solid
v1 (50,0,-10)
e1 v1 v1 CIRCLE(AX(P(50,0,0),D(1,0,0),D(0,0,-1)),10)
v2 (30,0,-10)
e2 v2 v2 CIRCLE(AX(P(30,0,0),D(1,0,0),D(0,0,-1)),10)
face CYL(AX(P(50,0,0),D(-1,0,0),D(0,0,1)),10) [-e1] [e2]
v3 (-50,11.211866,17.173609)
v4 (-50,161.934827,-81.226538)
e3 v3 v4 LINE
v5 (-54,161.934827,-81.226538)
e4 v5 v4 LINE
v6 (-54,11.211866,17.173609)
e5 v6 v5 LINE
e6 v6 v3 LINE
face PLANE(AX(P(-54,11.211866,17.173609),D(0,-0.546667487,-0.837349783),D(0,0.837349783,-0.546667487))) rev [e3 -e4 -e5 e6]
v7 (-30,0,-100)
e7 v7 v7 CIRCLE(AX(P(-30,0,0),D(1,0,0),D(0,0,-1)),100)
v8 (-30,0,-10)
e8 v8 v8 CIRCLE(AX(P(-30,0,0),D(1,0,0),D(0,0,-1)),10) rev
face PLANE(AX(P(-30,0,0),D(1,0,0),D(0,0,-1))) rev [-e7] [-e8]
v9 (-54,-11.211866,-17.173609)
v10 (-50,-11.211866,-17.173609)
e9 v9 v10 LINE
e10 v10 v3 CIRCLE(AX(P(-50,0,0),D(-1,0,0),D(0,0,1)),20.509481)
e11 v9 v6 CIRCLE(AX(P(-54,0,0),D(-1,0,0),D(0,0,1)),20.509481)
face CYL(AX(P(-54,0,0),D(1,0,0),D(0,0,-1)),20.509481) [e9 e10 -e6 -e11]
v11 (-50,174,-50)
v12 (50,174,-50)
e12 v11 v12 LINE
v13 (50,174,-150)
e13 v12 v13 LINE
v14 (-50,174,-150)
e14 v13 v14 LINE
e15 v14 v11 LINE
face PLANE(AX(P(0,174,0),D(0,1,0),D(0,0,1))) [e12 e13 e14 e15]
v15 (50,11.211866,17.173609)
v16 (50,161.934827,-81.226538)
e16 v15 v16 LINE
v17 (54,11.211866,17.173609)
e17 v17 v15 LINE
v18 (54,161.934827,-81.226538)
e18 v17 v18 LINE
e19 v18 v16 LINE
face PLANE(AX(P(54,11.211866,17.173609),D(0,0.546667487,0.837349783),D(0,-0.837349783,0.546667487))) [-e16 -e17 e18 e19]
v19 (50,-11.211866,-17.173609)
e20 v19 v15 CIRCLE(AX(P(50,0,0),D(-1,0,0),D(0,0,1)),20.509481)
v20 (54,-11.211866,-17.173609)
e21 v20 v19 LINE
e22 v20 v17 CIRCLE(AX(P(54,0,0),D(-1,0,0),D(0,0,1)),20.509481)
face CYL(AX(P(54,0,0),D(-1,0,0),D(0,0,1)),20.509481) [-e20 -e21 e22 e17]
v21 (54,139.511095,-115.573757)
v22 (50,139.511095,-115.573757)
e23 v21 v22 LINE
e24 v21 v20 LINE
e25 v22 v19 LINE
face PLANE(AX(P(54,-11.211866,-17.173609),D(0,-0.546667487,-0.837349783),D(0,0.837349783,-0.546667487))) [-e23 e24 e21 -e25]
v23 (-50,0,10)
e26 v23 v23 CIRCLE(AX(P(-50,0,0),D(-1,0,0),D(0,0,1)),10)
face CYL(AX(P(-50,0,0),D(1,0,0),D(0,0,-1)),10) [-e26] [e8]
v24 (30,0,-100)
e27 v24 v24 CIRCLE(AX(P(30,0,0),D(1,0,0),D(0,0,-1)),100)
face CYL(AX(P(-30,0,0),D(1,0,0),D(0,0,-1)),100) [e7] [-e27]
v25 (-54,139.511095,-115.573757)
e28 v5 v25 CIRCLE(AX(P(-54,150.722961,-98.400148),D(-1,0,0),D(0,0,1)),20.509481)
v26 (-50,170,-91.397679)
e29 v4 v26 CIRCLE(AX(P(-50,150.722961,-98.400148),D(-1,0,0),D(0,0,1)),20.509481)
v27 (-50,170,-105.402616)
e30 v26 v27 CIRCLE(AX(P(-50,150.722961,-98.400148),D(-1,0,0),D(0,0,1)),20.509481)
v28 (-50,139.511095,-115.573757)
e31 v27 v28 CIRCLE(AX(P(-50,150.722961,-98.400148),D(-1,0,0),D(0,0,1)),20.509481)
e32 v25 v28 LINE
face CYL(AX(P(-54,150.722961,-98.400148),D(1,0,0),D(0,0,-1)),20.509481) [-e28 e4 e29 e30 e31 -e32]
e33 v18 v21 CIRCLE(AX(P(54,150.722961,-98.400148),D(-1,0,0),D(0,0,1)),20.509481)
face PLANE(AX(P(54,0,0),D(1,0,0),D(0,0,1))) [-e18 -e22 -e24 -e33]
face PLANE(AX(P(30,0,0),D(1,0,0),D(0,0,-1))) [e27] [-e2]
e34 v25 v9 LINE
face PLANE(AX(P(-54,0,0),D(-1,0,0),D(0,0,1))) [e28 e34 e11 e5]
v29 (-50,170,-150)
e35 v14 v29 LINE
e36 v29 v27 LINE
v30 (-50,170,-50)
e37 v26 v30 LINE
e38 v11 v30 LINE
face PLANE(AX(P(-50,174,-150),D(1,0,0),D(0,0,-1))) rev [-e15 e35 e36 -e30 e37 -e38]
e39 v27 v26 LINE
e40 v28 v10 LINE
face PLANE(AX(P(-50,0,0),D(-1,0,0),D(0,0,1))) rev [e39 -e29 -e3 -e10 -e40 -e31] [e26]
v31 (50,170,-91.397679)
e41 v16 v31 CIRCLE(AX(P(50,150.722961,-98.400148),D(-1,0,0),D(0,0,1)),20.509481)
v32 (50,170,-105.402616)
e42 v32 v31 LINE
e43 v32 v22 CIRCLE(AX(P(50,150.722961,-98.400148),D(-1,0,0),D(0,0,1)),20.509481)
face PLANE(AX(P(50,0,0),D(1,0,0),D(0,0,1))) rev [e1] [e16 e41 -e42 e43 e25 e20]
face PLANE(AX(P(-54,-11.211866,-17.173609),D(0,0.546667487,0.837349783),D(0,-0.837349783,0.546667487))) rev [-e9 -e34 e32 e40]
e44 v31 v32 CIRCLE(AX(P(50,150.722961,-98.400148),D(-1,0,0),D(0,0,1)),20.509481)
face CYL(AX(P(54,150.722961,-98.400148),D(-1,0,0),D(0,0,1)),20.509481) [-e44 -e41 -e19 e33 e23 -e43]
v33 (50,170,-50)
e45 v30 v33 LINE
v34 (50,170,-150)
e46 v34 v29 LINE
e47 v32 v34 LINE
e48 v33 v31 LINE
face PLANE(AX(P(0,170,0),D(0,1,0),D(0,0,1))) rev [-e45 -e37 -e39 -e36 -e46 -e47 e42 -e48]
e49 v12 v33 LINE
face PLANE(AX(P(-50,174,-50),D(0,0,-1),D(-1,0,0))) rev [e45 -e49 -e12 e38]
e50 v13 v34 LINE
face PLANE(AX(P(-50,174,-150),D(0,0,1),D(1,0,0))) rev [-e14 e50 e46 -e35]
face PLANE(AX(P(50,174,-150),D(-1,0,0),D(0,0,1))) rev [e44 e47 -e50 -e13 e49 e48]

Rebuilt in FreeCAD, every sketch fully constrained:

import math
import FreeCAD as App
import Part
import Sketcher

doc = App.newDocument("Part")
params = doc.addObject("Spreadsheet::Sheet", "Params")
for row, (alias, value) in enumerate([
    ("sketch1_diameter", "200 mm"),
    ("pad1_length", "30 mm"),
    ("pad1_length2", "30 mm"),
    ("sketch2_diameter", "20 mm"),
    ("pad2_length", "20 mm"),
    ("sketch3_diameter", "20 mm"),
    ("pad3_length", "20 mm"),
    ("sketch4_length", "180 mm"),
    ("pad4_length", "4 mm"),
    ("sketch5_width", "100 mm"),
    ("pad5_length", "4 mm"),
], start=1):
    params.set(f"A{row}", alias)
    params.set(f"B{row}", "=" + value)
    params.setAlias(f"B{row}", alias)

body = doc.addObject("PartDesign::Body", "Body")

# Sketch on YZ plane
sketch1 = doc.addObject("Sketcher::SketchObject", "Sketch")
body.addObject(sketch1)
sketch1.AttachmentSupport = (doc.YZ_Plane, [""])
sketch1.MapMode = "FlatFace"
sketch1.addGeometry(Part.Circle(App.Vector(0, 0, 0), App.Vector(0, 0, 1), 100), False)
sketch1.addConstraint([
    Sketcher.Constraint("Coincident", 0, 3, -1, 1),
    Sketcher.Constraint("Diameter", 0, 200.0),
])
sketch1.setExpression("Constraints[1]", "Params.sketch1_diameter")
pad1 = doc.addObject("PartDesign::Pad", "Pad")
body.addObject(pad1)
pad1.Profile = sketch1
pad1.Type = "TwoLengths"
pad1.setExpression("Length", "Params.pad1_length")
pad1.setExpression("Length2", "Params.pad1_length2")

# Sketch on YZ plane
sketch2 = doc.addObject("Sketcher::SketchObject", "Sketch001")
body.addObject(sketch2)
sketch2.AttachmentSupport = (doc.YZ_Plane, [""])
sketch2.MapMode = "FlatFace"
sketch2.AttachmentOffset = App.Placement(App.Vector(0, 0, 30), App.Rotation())
sketch2.addGeometry(Part.Circle(App.Vector(0, 0, 0), App.Vector(0, 0, 1), 10), False)
sketch2.addConstraint([
    Sketcher.Constraint("Coincident", 0, 3, -1, 1),
    Sketcher.Constraint("Diameter", 0, 20.0),
])
sketch2.setExpression("Constraints[1]", "Params.sketch2_diameter")
pad2 = doc.addObject("PartDesign::Pad", "Pad001")
body.addObject(pad2)
pad2.Profile = sketch2
pad2.setExpression("Length", "Params.pad2_length")

# Sketch on YZ plane
sketch3 = doc.addObject("Sketcher::SketchObject", "Sketch002")
body.addObject(sketch3)
sketch3.AttachmentSupport = (doc.YZ_Plane, [""])
sketch3.MapMode = "FlatFace"
sketch3.AttachmentOffset = App.Placement(App.Vector(0, 0, -30), App.Rotation())
sketch3.addGeometry(Part.Circle(App.Vector(0, 0, 0), App.Vector(0, 0, 1), 10), False)
sketch3.addConstraint([
    Sketcher.Constraint("Coincident", 0, 3, -1, 1),
    Sketcher.Constraint("Diameter", 0, 20.0),
])
sketch3.setExpression("Constraints[1]", "Params.sketch3_diameter")
pad3 = doc.addObject("PartDesign::Pad", "Pad002")
body.addObject(pad3)
pad3.Profile = sketch3
pad3.setExpression("Length", "Params.pad3_length")
pad3.Reversed = True

# Sketch on YZ plane
sketch4 = doc.addObject("Sketcher::SketchObject", "Sketch003")
body.addObject(sketch4)
sketch4.AttachmentSupport = (doc.YZ_Plane, [""])
sketch4.MapMode = "FlatFace"
sketch4.AttachmentOffset = App.Placement(App.Vector(0, 0, -50), App.Rotation())
sketch4.addGeometry([
    Part.LineSegment(App.Vector(140, -116, 0), App.Vector(-11, -17, 0)),
    Part.ArcOfCircle(Part.Circle(App.Vector(0, 0, 0), App.Vector(0, 0, 1), 21), math.radians(57), math.radians(237)),
    Part.LineSegment(App.Vector(11, 17, 0), App.Vector(162, -81, 0)),
    Part.ArcOfCircle(Part.Circle(App.Vector(151, -98, 0), App.Vector(0, 0, 1), 21), math.radians(-123), math.radians(57)),
], False)
sketch4.addConstraint([
    Sketcher.Constraint("Tangent", 0, 2, 1, 2),
    Sketcher.Constraint("Tangent", 1, 1, 2, 1),
    Sketcher.Constraint("Tangent", 2, 2, 3, 2),
    Sketcher.Constraint("Tangent", 3, 1, 0, 1),
    Sketcher.Constraint("Coincident", 1, 3, -1, 1),
    Sketcher.Constraint("Equal", 1, 3),
    Sketcher.Constraint("Distance", 0, 180.0),
    Sketcher.Constraint("Radius", 1, 20.509481),
    Sketcher.Constraint("DistanceX", -1, 1, 3, 3, 150.722961),
])
sketch4.setExpression("Constraints[6]", "Params.sketch4_length")
pad4 = doc.addObject("PartDesign::Pad", "Pad003")
body.addObject(pad4)
pad4.Profile = sketch4
pad4.setExpression("Length", "Params.pad4_length")
pad4.Reversed = True
doc.recompute()

mirrored = doc.addObject("PartDesign::Mirrored", "Mirrored")
body.addObject(mirrored)
mirrored.Originals = [pad4]
mirrored.MirrorPlane = (doc.YZ_Plane, [""])
body.Tip = mirrored

# Sketch on XZ plane
sketch5 = doc.addObject("Sketcher::SketchObject", "Sketch004")
body.addObject(sketch5)
sketch5.AttachmentSupport = (doc.XZ_Plane, [""])
sketch5.MapMode = "FlatFace"
sketch5.AttachmentOffset = App.Placement(App.Vector(0, 0, -170), App.Rotation())
sketch5.addGeometry([
    Part.LineSegment(App.Vector(-50, -150, 0), App.Vector(-50, -50, 0)),
    Part.LineSegment(App.Vector(-50, -50, 0), App.Vector(50, -50, 0)),
    Part.LineSegment(App.Vector(50, -50, 0), App.Vector(50, -150, 0)),
    Part.LineSegment(App.Vector(50, -150, 0), App.Vector(-50, -150, 0)),
], False)
sketch5.addConstraint([
    Sketcher.Constraint("Coincident", 0, 2, 1, 1),
    Sketcher.Constraint("Coincident", 1, 2, 2, 1),
    Sketcher.Constraint("Coincident", 2, 2, 3, 1),
    Sketcher.Constraint("Coincident", 3, 2, 0, 1),
    Sketcher.Constraint("Vertical", 0),
    Sketcher.Constraint("Horizontal", 1),
    Sketcher.Constraint("Vertical", 2),
    Sketcher.Constraint("Horizontal", 3),
    Sketcher.Constraint("Equal", 3, 0),
    Sketcher.Constraint("DistanceX", 1, 1, 1, 2, 100.0),
    Sketcher.Constraint("DistanceX", 0, 2, -1, 1, 50.0),
    Sketcher.Constraint("DistanceY", 0, 2, -1, 1, 50.0),
])
sketch5.setExpression("Constraints[9]", "Params.sketch5_width")
pad5 = doc.addObject("PartDesign::Pad", "Pad004")
body.addObject(pad5)
pad5.Profile = sketch5
pad5.setExpression("Length", "Params.pad5_length")
pad5.Reversed = True

doc.recompute()
